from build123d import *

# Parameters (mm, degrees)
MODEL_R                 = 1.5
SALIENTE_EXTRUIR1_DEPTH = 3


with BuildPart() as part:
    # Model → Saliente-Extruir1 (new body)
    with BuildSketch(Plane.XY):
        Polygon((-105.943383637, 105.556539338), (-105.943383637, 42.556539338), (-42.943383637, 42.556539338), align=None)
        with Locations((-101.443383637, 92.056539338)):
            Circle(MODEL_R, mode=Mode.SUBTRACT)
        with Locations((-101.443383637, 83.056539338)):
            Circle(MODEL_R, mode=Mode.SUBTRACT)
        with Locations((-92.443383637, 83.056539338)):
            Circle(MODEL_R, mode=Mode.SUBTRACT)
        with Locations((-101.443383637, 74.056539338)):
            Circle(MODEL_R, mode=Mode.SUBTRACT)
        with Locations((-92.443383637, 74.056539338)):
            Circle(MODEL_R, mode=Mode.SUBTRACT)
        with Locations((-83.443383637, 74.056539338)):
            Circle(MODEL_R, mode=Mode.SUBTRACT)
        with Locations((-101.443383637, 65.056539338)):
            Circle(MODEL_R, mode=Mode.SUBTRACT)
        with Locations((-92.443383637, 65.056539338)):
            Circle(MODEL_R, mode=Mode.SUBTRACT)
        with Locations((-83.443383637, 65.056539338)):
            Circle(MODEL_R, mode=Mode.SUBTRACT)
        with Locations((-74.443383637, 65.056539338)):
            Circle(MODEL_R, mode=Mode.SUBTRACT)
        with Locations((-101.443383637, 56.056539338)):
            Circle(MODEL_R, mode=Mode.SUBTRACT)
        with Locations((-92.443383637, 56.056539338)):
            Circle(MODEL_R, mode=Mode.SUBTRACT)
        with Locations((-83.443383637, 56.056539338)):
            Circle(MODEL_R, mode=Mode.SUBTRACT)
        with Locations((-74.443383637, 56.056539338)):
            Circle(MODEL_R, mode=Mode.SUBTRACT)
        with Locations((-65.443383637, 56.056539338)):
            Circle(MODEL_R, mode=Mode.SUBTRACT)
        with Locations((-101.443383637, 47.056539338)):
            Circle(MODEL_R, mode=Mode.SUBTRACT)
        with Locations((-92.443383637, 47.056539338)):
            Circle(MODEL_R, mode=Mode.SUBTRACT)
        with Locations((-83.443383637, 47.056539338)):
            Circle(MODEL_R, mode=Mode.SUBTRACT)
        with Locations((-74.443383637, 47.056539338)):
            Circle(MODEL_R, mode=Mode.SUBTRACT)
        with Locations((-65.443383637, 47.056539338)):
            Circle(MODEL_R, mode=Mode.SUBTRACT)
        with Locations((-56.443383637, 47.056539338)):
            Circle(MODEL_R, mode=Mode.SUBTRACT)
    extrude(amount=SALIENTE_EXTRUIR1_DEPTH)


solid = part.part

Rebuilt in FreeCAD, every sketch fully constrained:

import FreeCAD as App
import Part
import Sketcher

V = App.Vector


def add_polygon(sketch, points):
    """Adds a closed chain of lines whose ends are joined by coincident constraints."""
    first, n = sketch.GeometryCount, len(points)
    for a, b in zip(points, points[1:] + points[:1]):
        sketch.addGeometry(Part.LineSegment(App.Vector(*a, 0), App.Vector(*b, 0)), False)
    for i in range(n):
        sketch.addConstraint(Sketcher.Constraint("Coincident", first + i, 2, first + (i + 1) % n, 1))

doc = App.newDocument("Part")
body = doc.addObject("PartDesign::Body", "Body")

sketch1 = body.newObject("Sketcher::SketchObject", "Sketch")
sketch1.AttachmentSupport = (doc.getObject("XY_Plane"), [""])
sketch1.MapMode = "FlatFace"
add_polygon(sketch1, [(-105.943384, 105.556539), (-105.943384, 42.556539), (-42.943384, 42.556539)])
sketch1.addGeometry(Part.Circle(V(-101.443384, 47.056539, 0), V(0, 0, 1), 1.5), False)
sketch1.addGeometry(Part.Circle(V(-92.443384, 47.056539, 0), V(0, 0, 1), 1.5), False)
sketch1.addGeometry(Part.Circle(V(-101.443384, 56.056539, 0), V(0, 0, 1), 1.5), False)
sketch1.addGeometry(Part.Circle(V(-92.443384, 56.056539, 0), V(0, 0, 1), 1.5), False)
sketch1.addGeometry(Part.Circle(V(-83.443384, 47.056539, 0), V(0, 0, 1), 1.5), False)
sketch1.addGeometry(Part.Circle(V(-83.443384, 56.056539, 0), V(0, 0, 1), 1.5), False)
sketch1.addGeometry(Part.Circle(V(-101.443384, 65.056539, 0), V(0, 0, 1), 1.5), False)
sketch1.addGeometry(Part.Circle(V(-92.443384, 65.056539, 0), V(0, 0, 1), 1.5), False)
sketch1.addGeometry(Part.Circle(V(-83.443384, 65.056539, 0), V(0, 0, 1), 1.5), False)
sketch1.addGeometry(Part.Circle(V(-74.443384, 47.056539, 0), V(0, 0, 1), 1.5), False)
sketch1.addGeometry(Part.Circle(V(-74.443384, 56.056539, 0), V(0, 0, 1), 1.5), False)
sketch1.addGeometry(Part.Circle(V(-65.443384, 47.056539, 0), V(0, 0, 1), 1.5), False)
sketch1.addGeometry(Part.Circle(V(-56.443384, 47.056539, 0), V(0, 0, 1), 1.5), False)
sketch1.addGeometry(Part.Circle(V(-65.443384, 56.056539, 0), V(0, 0, 1), 1.5), False)
sketch1.addGeometry(Part.Circle(V(-74.443384, 65.056539, 0), V(0, 0, 1), 1.5), False)
sketch1.addGeometry(Part.Circle(V(-101.443384, 74.056539, 0), V(0, 0, 1), 1.5), False)
sketch1.addGeometry(Part.Circle(V(-92.443384, 74.056539, 0), V(0, 0, 1), 1.5), False)
sketch1.addGeometry(Part.Circle(V(-83.443384, 74.056539, 0), V(0, 0, 1), 1.5), False)
sketch1.addGeometry(Part.Circle(V(-101.443384, 83.056539, 0), V(0, 0, 1), 1.5), False)
sketch1.addGeometry(Part.Circle(V(-92.443384, 83.056539, 0), V(0, 0, 1), 1.5), False)
sketch1.addGeometry(Part.Circle(V(-101.443384, 92.056539, 0), V(0, 0, 1), 1.5), False)
sketch1.addConstraint([
    Sketcher.Constraint("Vertical", 0),
    Sketcher.Constraint("Horizontal", 1),
    Sketcher.Constraint("Equal", 3, 4),
    Sketcher.Constraint("Equal", 4, 5),
    Sketcher.Constraint("Equal", 5, 6),
    Sketcher.Constraint("Equal", 6, 7),
    Sketcher.Constraint("Equal", 7, 8),
    Sketcher.Constraint("Equal", 8, 9),
    Sketcher.Constraint("Equal", 9, 10),
    Sketcher.Constraint("Equal", 10, 11),
    Sketcher.Constraint("Equal", 11, 12),
    Sketcher.Constraint("Equal", 12, 13),
    Sketcher.Constraint("Equal", 13, 14),
    Sketcher.Constraint("Equal", 14, 15),
    Sketcher.Constraint("Equal", 15, 16),
    Sketcher.Constraint("Equal", 16, 17),
    Sketcher.Constraint("Equal", 17, 18),
    Sketcher.Constraint("Equal", 18, 19),
    Sketcher.Constraint("Equal", 19, 20),
    Sketcher.Constraint("Equal", 20, 21),
    Sketcher.Constraint("Equal", 21, 22),
    Sketcher.Constraint("Equal", 22, 23),
    Sketcher.Constraint("Horizontal", 3, 3, 4, 3),
    Sketcher.Constraint("Horizontal", 5, 3, 6, 3),
    Sketcher.Constraint("Horizontal", 4, 3, 7, 3),
    Sketcher.Constraint("Horizontal", 6, 3, 8, 3),
    Sketcher.Constraint("Horizontal", 9, 3, 10, 3),
    Sketcher.Constraint("Horizontal", 10, 3, 11, 3),
    Sketcher.Constraint("Horizontal", 7, 3, 12, 3),
    Sketcher.Constraint("Horizontal", 8, 3, 13, 3),
    Sketcher.Constraint("Horizontal", 12, 3, 14, 3),
    Sketcher.Constraint("Horizontal", 14, 3, 15, 3),
    Sketcher.Constraint("Horizontal", 13, 3, 16, 3),
    Sketcher.Constraint("Horizontal", 11, 3, 17, 3),
    Sketcher.Constraint("Horizontal", 18, 3, 19, 3),
    Sketcher.Constraint("Horizontal", 19, 3, 20, 3),
    Sketcher.Constraint("Horizontal", 21, 3, 22, 3),
    Sketcher.Constraint("Vertical", 3, 3, 5, 3),
    Sketcher.Constraint("Vertical", 4, 3, 6, 3),
    Sketcher.Constraint("Vertical", 7, 3, 8, 3),
    Sketcher.Constraint("Vertical", 5, 3, 9, 3),
    Sketcher.Constraint("Vertical", 6, 3, 10, 3),
    Sketcher.Constraint("Vertical", 8, 3, 11, 3),
    Sketcher.Constraint("Vertical", 12, 3, 13, 3),
    Sketcher.Constraint("Vertical", 14, 3, 16, 3),
    Sketcher.Constraint("Vertical", 13, 3, 17, 3),
    Sketcher.Constraint("Vertical", 9, 3, 18, 3),
    Sketcher.Constraint("Vertical", 10, 3, 19, 3),
    Sketcher.Constraint("Vertical", 11, 3, 20, 3),
    Sketcher.Constraint("Vertical", 18, 3, 21, 3),
    Sketcher.Constraint("Vertical", 19, 3, 22, 3),
    Sketcher.Constraint("Vertical", 21, 3, 23, 3),
    Sketcher.Constraint("Equal", 1, 0),
    Sketcher.Constraint("Diameter", 3, 3.0),
    Sketcher.Constraint("DistanceX", 1, 1, 1, 2, 63.0),
    Sketcher.Constraint("DistanceX", 3, 3, 4, 3, 9.0),
    Sketcher.Constraint("DistanceY", 3, 3, 5, 3, 9.0),
    Sketcher.Constraint("DistanceX", 4, 3, 7, 3, 9.0),
    Sketcher.Constraint("DistanceY", 5, 3, 9, 3, 9.0),
    Sketcher.Constraint("DistanceX", 7, 3, 12, 3, 9.0),
    Sketcher.Constraint("DistanceX", 12, 3, 14, 3, 9.0),
    Sketcher.Constraint("DistanceX", 14, 3, 15, 3, 9.0),
    Sketcher.Constraint("DistanceY", 9, 3, 18, 3, 9.0),
    Sketcher.Constraint("DistanceY", 18, 3, 21, 3, 9.0),
    Sketcher.Constraint("DistanceY", 21, 3, 23, 3, 9.0),
    Sketcher.Constraint("DistanceX", 0, 2, 3, 3, 4.5),
    Sketcher.Constraint("DistanceY", 0, 2, 3, 3, 4.5),
    Sketcher.Constraint("DistanceY", -1, 1, 3, 3, 47.056539),
    Sketcher.Constraint("DistanceX", 3, 3, -1, 1, 101.443384),
])
pad1 = body.newObject("PartDesign::Pad", "Pad")
pad1.Profile = sketch1
pad1.Length = 3

doc.recompute()
